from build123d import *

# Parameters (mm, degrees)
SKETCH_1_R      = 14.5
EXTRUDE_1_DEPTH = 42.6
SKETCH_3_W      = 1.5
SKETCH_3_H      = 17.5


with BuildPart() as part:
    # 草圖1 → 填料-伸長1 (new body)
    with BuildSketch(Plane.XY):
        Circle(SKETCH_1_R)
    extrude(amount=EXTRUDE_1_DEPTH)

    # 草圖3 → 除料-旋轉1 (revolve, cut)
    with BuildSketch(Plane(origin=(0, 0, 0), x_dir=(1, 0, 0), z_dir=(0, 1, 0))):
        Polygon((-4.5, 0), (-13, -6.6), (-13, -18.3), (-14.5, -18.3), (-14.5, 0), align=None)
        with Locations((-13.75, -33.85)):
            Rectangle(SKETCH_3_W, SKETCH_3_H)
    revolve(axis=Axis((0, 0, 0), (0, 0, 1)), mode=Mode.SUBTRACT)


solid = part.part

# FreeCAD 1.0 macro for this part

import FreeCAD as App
import Part
import Sketcher

V = App.Vector
Q = App.Units.Quantity


def add_polygon(sketch, points):
    """Adds a closed chain of lines whose ends are joined by coincident constraints."""
    first, n = sketch.GeometryCount, len(points)
    for a, b in zip(points, points[1:] + points[:1]):
        sketch.addGeometry(Part.LineSegment(App.Vector(*a, 0), App.Vector(*b, 0)), False)
    for i in range(n):
        sketch.addConstraint(Sketcher.Constraint("Coincident", first + i, 2, first + (i + 1) % n, 1))

doc = App.newDocument("Part")
body = doc.addObject("PartDesign::Body", "Body")

# Sketch on XY plane
sketch1 = body.newObject("Sketcher::SketchObject", "Sketch")
sketch1.AttachmentSupport = (doc.getObject("XY_Plane"), [""])
sketch1.MapMode = "FlatFace"
sketch1.addGeometry(Part.Circle(V(0, 0, 0), V(0, 0, 1), 14.5), False)
sketch1.addConstraint([
    Sketcher.Constraint("Coincident", 0, 3, -1, 1),
    Sketcher.Constraint("Diameter", 0, Q("29 mm")),
])
pad1 = body.newObject("PartDesign::Pad", "Pad")
pad1.Profile = sketch1
pad1.Length = 42.6

# Sketch on XZ plane
sketch2 = body.newObject("Sketcher::SketchObject", "Sketch001")
sketch2.AttachmentSupport = (doc.getObject("XZ_Plane"), [""])
sketch2.MapMode = "FlatFace"
add_polygon(sketch2, [(-13, 6.6), (-4.5, 0), (-14.5, 0), (-14.5, 18.3), (-13, 18.3)])  # lines 0-4
add_polygon(sketch2, [(-14.5, 25.1), (-14.5, 42.6), (-13, 42.6), (-13, 25.1)])  # lines 5-8
sketch2.addConstraint([
    Sketcher.Constraint("Horizontal", 1),
    Sketcher.Constraint("Vertical", 2),
    Sketcher.Constraint("Horizontal", 3),
    Sketcher.Constraint("Vertical", 4),
    Sketcher.Constraint("Vertical", 5),
    Sketcher.Constraint("Horizontal", 6),
    Sketcher.Constraint("Vertical", 7),
    Sketcher.Constraint("Horizontal", 8),
    Sketcher.Constraint("PointOnObject", 0, 2, -1),
    Sketcher.Constraint("Vertical", 2, 2, 5, 2),
    Sketcher.Constraint("Vertical", 4, 2, 6, 2),
    Sketcher.Constraint("DistanceX", 1, 2, 1, 1, Q("10 mm")),
    Sketcher.Constraint("DistanceX", 3, 1, 3, 2, Q("1.5 mm")),
    Sketcher.Constraint("DistanceY", 2, 1, 2, 2, Q("18.3 mm")),
    Sketcher.Constraint("DistanceY", 4, 2, 4, 1, Q("11.7 mm")),
    Sketcher.Constraint("DistanceY", 5, 1, 5, 2, Q("17.5 mm")),
    Sketcher.Constraint("DistanceX", 3, 2, -1, 1, Q("13 mm")),
    Sketcher.Constraint("DistanceY", 4, 2, 5, 2, Q("36 mm")),
])
groove = body.newObject("PartDesign::Groove", "Groove")
groove.Profile = sketch2
groove.ReferenceAxis = (sketch2, ["V_Axis"])
groove.Angle = 360

doc.recompute()
